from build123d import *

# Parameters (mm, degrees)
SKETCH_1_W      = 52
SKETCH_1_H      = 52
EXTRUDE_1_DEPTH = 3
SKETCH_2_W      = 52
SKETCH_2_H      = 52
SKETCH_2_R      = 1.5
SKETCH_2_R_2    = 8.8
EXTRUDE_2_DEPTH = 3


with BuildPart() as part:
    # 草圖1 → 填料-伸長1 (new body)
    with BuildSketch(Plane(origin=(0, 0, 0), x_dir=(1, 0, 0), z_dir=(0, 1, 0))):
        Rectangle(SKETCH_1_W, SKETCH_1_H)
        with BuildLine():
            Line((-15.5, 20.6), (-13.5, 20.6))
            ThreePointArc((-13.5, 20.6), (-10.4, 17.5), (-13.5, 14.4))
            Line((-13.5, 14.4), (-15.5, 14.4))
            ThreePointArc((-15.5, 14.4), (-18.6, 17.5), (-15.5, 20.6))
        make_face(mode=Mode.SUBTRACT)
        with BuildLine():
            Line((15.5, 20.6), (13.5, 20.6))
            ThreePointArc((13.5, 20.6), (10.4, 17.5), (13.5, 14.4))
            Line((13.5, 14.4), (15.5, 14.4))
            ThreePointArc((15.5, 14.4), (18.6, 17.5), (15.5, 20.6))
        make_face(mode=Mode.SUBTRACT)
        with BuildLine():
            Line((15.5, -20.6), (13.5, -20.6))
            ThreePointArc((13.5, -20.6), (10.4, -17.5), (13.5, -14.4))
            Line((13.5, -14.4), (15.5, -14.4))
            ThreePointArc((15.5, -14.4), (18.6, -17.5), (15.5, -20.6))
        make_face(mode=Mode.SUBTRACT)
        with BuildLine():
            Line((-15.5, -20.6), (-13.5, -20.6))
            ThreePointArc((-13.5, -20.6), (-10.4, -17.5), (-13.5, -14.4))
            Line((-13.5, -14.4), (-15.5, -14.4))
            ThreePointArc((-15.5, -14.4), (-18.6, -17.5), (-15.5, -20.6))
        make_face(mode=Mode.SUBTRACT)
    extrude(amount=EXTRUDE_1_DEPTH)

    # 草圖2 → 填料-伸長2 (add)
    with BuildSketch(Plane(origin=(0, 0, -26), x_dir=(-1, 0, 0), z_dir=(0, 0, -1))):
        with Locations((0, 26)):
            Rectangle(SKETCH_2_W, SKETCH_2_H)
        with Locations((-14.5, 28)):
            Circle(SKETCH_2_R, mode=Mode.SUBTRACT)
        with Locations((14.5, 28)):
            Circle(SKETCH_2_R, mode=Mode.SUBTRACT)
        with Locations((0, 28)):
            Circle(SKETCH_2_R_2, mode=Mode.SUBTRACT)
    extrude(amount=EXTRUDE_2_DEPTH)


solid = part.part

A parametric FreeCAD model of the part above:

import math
import FreeCAD as App
import Part
import Sketcher
Q = App.Units.Quantity

doc = App.newDocument("Part")
params = doc.addObject("Spreadsheet::Sheet", "Params")
for row, (alias, value) in enumerate([
    ("sketch1_radius", "3.1 mm"),
    ("sketch1_width", "52 mm"),
    ("sketch1_width2", "2 mm"),
    ("pad1_length", "3 mm"),
    ("sketch2_diameter", "3 mm"),
    ("sketch2_diameter2", "17.6 mm"),
    ("sketch2_width", "52 mm"),
    ("pad2_length", "3 mm"),
], start=1):
    params.set(f"A{row}", alias)
    params.set(f"B{row}", "=" + value)
    params.setAlias(f"B{row}", alias)

body = doc.addObject("PartDesign::Body", "Body")

# Sketch on XZ plane
sketch1 = body.newObject("Sketcher::SketchObject", "Sketch")
sketch1.AttachmentSupport = (doc.getObject("XZ_Plane"), [""])
sketch1.MapMode = "FlatFace"
sketch1.addGeometry([
    Part.LineSegment(App.Vector(-26, -26, 0), App.Vector(-26, 26, 0)),  # 0
    Part.LineSegment(App.Vector(-26, 26, 0), App.Vector(26, 26, 0)),  # 1
    Part.LineSegment(App.Vector(26, 26, 0), App.Vector(26, -26, 0)),  # 2
    Part.LineSegment(App.Vector(26, -26, 0), App.Vector(-26, -26, 0)),  # 3
    Part.LineSegment(App.Vector(-13.5, 20.6, 0), App.Vector(-15.5, 20.6, 0)),  # 4
    Part.ArcOfCircle(Part.Circle(App.Vector(-15.5, 17.5, 0), App.Vector(0, 0, 1), 3.1), math.radians(90), math.radians(270)),  # 5
    Part.LineSegment(App.Vector(-15.5, 14.4, 0), App.Vector(-13.5, 14.4, 0)),  # 6
    Part.ArcOfCircle(Part.Circle(App.Vector(-13.5, 17.5, 0), App.Vector(0, 0, 1), 3.1), math.radians(-90), math.radians(90)),  # 7
    Part.ArcOfCircle(Part.Circle(App.Vector(15.5, 17.5, 0), App.Vector(0, 0, 1), 3.1), math.radians(-90), math.radians(90)),  # 8
    Part.LineSegment(App.Vector(15.5, 20.6, 0), App.Vector(13.5, 20.6, 0)),  # 9
    Part.ArcOfCircle(Part.Circle(App.Vector(13.5, 17.5, 0), App.Vector(0, 0, 1), 3.1), math.radians(90), math.radians(270)),  # 10
    Part.LineSegment(App.Vector(13.5, 14.4, 0), App.Vector(15.5, 14.4, 0)),  # 11
    Part.ArcOfCircle(Part.Circle(App.Vector(-15.5, -17.5, 0), App.Vector(0, 0, 1), 3.1), math.radians(90), math.radians(270)),  # 12
    Part.LineSegment(App.Vector(-15.5, -20.6, 0), App.Vector(-13.5, -20.6, 0)),  # 13
    Part.ArcOfCircle(Part.Circle(App.Vector(-13.5, -17.5, 0), App.Vector(0, 0, 1), 3.1), math.radians(-90), math.radians(90)),  # 14
    Part.LineSegment(App.Vector(-13.5, -14.4, 0), App.Vector(-15.5, -14.4, 0)),  # 15
    Part.LineSegment(App.Vector(13.5, -20.6, 0), App.Vector(15.5, -20.6, 0)),  # 16
    Part.ArcOfCircle(Part.Circle(App.Vector(15.5, -17.5, 0), App.Vector(0, 0, 1), 3.1), math.radians(-90), math.radians(90)),  # 17
    Part.LineSegment(App.Vector(15.5, -14.4, 0), App.Vector(13.5, -14.4, 0)),  # 18
    Part.ArcOfCircle(Part.Circle(App.Vector(13.5, -17.5, 0), App.Vector(0, 0, 1), 3.1), math.radians(90), math.radians(270)),  # 19
], False)
sketch1.addConstraint([
    Sketcher.Constraint("Coincident", 0, 2, 1, 1),
    Sketcher.Constraint("Coincident", 1, 2, 2, 1),
    Sketcher.Constraint("Coincident", 2, 2, 3, 1),
    Sketcher.Constraint("Coincident", 3, 2, 0, 1),
    Sketcher.Constraint("Tangent", 4, 2, 5, 1),
    Sketcher.Constraint("Tangent", 5, 2, 6, 1),
    Sketcher.Constraint("Tangent", 6, 2, 7, 1),
    Sketcher.Constraint("Tangent", 7, 2, 4, 1),
    Sketcher.Constraint("Tangent", 8, 2, 9, 1),
    Sketcher.Constraint("Tangent", 9, 2, 10, 1),
    Sketcher.Constraint("Tangent", 10, 2, 11, 1),
    Sketcher.Constraint("Tangent", 11, 2, 8, 1),
    Sketcher.Constraint("Tangent", 12, 2, 13, 1),
    Sketcher.Constraint("Tangent", 13, 2, 14, 1),
    Sketcher.Constraint("Tangent", 14, 2, 15, 1),
    Sketcher.Constraint("Tangent", 15, 2, 12, 1),
    Sketcher.Constraint("Tangent", 16, 2, 17, 1),
    Sketcher.Constraint("Tangent", 17, 2, 18, 1),
    Sketcher.Constraint("Tangent", 18, 2, 19, 1),
    Sketcher.Constraint("Tangent", 19, 2, 16, 1),
    Sketcher.Constraint("Vertical", 0),
    Sketcher.Constraint("Horizontal", 1),
    Sketcher.Constraint("Vertical", 2),
    Sketcher.Constraint("Horizontal", 3),
    Sketcher.Constraint("Horizontal", 4),
    Sketcher.Constraint("Horizontal", 6),
    Sketcher.Constraint("Horizontal", 9),
    Sketcher.Constraint("Horizontal", 11),
    Sketcher.Constraint("Horizontal", 13),
    Sketcher.Constraint("Horizontal", 15),
    Sketcher.Constraint("Horizontal", 16),
    Sketcher.Constraint("Horizontal", 18),
    Sketcher.Constraint("Equal", 7, 8),
    Sketcher.Constraint("Equal", 10, 12),
    Sketcher.Constraint("Equal", 14, 17),
    Sketcher.Constraint("Symmetric", 8, 3, 12, 3, -1, 1),
    Sketcher.Constraint("Symmetric", 5, 3, 17, 3, -1, 1),
    Sketcher.Constraint("Symmetric", 0, 2, 2, 2, -1, 1),
    Sketcher.Constraint("Symmetric", 5, 3, 8, 3, -2),
    Sketcher.Constraint("Vertical", 7, 3, 14, 3),
    Sketcher.Constraint("Vertical", 10, 3, 19, 3),
    Sketcher.Constraint("Equal", 6, 9),
    Sketcher.Constraint("Equal", 3, 0),
    Sketcher.Constraint("Radius", 5, Q("3.1 mm")),
    Sketcher.Constraint("DistanceX", 1, 1, 1, 2, Q("52 mm")),
    Sketcher.Constraint("DistanceX", 4, 2, 4, 1, Q("2 mm")),
    Sketcher.Constraint("DistanceX", 7, 3, 8, 3, Q("29 mm")),
    Sketcher.Constraint("DistanceY", 12, 3, 5, 3, Q("35 mm")),
])
sketch1.setExpression("Constraints[43]", "Params.sketch1_radius")
sketch1.setExpression("Constraints[44]", "Params.sketch1_width")
sketch1.setExpression("Constraints[45]", "Params.sketch1_width2")
pad1 = body.newObject("PartDesign::Pad", "Pad")
pad1.Profile = sketch1
pad1.setExpression("Length", "Params.pad1_length")
pad1.Reversed = True

# Sketch on XY plane
sketch2 = body.newObject("Sketcher::SketchObject", "Sketch001")
sketch2.AttachmentSupport = (doc.getObject("XY_Plane"), [""])
sketch2.MapMode = "FlatFace"
sketch2.AttachmentOffset = App.Placement(App.Vector(0, 0, -26), App.Rotation())
sketch2.addGeometry([
    Part.LineSegment(App.Vector(26, 52, 0), App.Vector(26, 0, 0)),  # 0
    Part.LineSegment(App.Vector(26, 0, 0), App.Vector(-26, 0, 0)),  # 1
    Part.LineSegment(App.Vector(-26, 0, 0), App.Vector(-26, 52, 0)),  # 2
    Part.LineSegment(App.Vector(-26, 52, 0), App.Vector(26, 52, 0)),  # 3
    Part.Circle(App.Vector(14.5, 28, 0), App.Vector(0, 0, 1), 1.5),  # 4
    Part.Circle(App.Vector(0, 28, 0), App.Vector(0, 0, 1), 8.8),  # 5
    Part.Circle(App.Vector(-14.5, 28, 0), App.Vector(0, 0, 1), 1.5),  # 6
], False)
sketch2.addConstraint([
    Sketcher.Constraint("Coincident", 0, 2, 1, 1),
    Sketcher.Constraint("Coincident", 1, 2, 2, 1),
    Sketcher.Constraint("Coincident", 2, 2, 3, 1),
    Sketcher.Constraint("Coincident", 3, 2, 0, 1),
    Sketcher.Constraint("Vertical", 0),
    Sketcher.Constraint("Horizontal", 1),
    Sketcher.Constraint("Vertical", 2),
    Sketcher.Constraint("Horizontal", 3),
    Sketcher.Constraint("Equal", 4, 6),
    Sketcher.Constraint("Symmetric", 0, 2, 1, 2, -1, 1),
    Sketcher.Constraint("Symmetric", 4, 3, 6, 3, -2),
    Sketcher.Constraint("PointOnObject", 5, 3, -2),
    Sketcher.Constraint("Horizontal", 4, 3, 5, 3),
    Sketcher.Constraint("Equal", 3, 0),
    Sketcher.Constraint("Diameter", 4, Q("3 mm")),
    Sketcher.Constraint("Diameter", 5, Q("17.6 mm")),
    Sketcher.Constraint("DistanceX", 1, 2, 1, 1, Q("52 mm")),
    Sketcher.Constraint("DistanceY", -1, 1, 4, 3, Q("28 mm")),
    Sketcher.Constraint("DistanceX", 6, 3, 4, 3, Q("29 mm")),
])
sketch2.setExpression("Constraints[14]", "Params.sketch2_diameter")
sketch2.setExpression("Constraints[15]", "Params.sketch2_diameter2")
sketch2.setExpression("Constraints[16]", "Params.sketch2_width")
pad2 = body.newObject("PartDesign::Pad", "Pad001")
pad2.Profile = sketch2
pad2.setExpression("Length", "Params.pad2_length")
pad2.Reversed = True

doc.recompute()
